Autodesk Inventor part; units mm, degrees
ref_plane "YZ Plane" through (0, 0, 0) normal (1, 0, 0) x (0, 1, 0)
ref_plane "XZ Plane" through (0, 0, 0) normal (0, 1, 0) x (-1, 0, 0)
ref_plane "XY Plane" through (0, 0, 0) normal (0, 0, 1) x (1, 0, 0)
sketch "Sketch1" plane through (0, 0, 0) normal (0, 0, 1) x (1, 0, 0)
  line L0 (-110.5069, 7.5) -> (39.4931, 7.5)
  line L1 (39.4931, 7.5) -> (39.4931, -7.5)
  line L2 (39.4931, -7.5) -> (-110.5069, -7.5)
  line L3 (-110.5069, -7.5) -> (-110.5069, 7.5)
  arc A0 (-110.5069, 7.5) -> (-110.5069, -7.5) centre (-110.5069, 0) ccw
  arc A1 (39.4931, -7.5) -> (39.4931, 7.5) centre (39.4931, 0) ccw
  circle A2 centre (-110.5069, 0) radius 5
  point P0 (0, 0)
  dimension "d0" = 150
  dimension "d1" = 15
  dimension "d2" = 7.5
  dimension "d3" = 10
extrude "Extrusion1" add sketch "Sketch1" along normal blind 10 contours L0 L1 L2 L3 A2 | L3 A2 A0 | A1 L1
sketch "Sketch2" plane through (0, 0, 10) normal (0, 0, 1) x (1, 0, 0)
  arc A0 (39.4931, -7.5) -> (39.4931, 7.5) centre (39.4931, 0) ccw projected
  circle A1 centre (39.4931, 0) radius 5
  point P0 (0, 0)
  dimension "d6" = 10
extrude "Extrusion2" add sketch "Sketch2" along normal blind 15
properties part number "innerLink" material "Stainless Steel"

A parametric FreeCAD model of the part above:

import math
import FreeCAD as App
import Part
import Sketcher

V = App.Vector

doc = App.newDocument("Part")
body = doc.addObject("PartDesign::Body", "Body")

sketch1 = body.newObject("Sketcher::SketchObject", "Sketch")
sketch1.AttachmentSupport = (doc.getObject("XY_Plane"), [""])
sketch1.MapMode = "FlatFace"
sketch1.addGeometry([
    Part.LineSegment(V(39.4931, 7.5, 0), V(-110.5069, 7.5, 0)),
    Part.ArcOfCircle(Part.Circle(V(-110.5069, 0, 0), V(0, 0, 1), 7.5), math.radians(90), math.radians(270)),
    Part.LineSegment(V(-110.5069, -7.5, 0), V(39.4931, -7.5, 0)),
    Part.ArcOfCircle(Part.Circle(V(39.4931, 0, 0), V(0, 0, 1), 7.5), math.radians(-90), math.radians(90)),
    Part.Circle(V(-110.5069, 0, 0), V(0, 0, 1), 5),
], False)
sketch1.addConstraint([
    Sketcher.Constraint("Tangent", 0, 2, 1, 1),
    Sketcher.Constraint("Tangent", 1, 2, 2, 1),
    Sketcher.Constraint("Tangent", 2, 2, 3, 1),
    Sketcher.Constraint("Tangent", 3, 2, 0, 1),
    Sketcher.Constraint("Horizontal", 0),
    Sketcher.Constraint("Horizontal", 2),
    Sketcher.Constraint("Coincident", 4, 3, 1, 3),
    Sketcher.Constraint("PointOnObject", 1, 3, -1),
    Sketcher.Constraint("Diameter", 4, 10.0),
    Sketcher.Constraint("Radius", 1, 7.5),
    Sketcher.Constraint("DistanceX", 0, 2, 0, 1, 150.0),
    Sketcher.Constraint("DistanceX", 1, 3, -1, 1, 110.507),
])
pad1 = body.newObject("PartDesign::Pad", "Pad")
pad1.Profile = sketch1
pad1.Length = 10

sketch2 = body.newObject("Sketcher::SketchObject", "Sketch001")
sketch2.AttachmentSupport = (doc.getObject("XY_Plane"), [""])
sketch2.MapMode = "FlatFace"
sketch2.AttachmentOffset = App.Placement(V(0, 0, 10), App.Rotation())
sketch2.addGeometry(Part.Circle(V(39.4931, 0, 0), V(0, 0, 1), 5), False)
sketch2.addConstraint([
    Sketcher.Constraint("PointOnObject", 0, 3, -1),
    Sketcher.Constraint("Diameter", 0, 10.0),
    Sketcher.Constraint("DistanceX", -1, 1, 0, 3, 39.493),
])
pad2 = body.newObject("PartDesign::Pad", "Pad001")
pad2.Profile = sketch2
pad2.Length = 15

doc.recompute()
